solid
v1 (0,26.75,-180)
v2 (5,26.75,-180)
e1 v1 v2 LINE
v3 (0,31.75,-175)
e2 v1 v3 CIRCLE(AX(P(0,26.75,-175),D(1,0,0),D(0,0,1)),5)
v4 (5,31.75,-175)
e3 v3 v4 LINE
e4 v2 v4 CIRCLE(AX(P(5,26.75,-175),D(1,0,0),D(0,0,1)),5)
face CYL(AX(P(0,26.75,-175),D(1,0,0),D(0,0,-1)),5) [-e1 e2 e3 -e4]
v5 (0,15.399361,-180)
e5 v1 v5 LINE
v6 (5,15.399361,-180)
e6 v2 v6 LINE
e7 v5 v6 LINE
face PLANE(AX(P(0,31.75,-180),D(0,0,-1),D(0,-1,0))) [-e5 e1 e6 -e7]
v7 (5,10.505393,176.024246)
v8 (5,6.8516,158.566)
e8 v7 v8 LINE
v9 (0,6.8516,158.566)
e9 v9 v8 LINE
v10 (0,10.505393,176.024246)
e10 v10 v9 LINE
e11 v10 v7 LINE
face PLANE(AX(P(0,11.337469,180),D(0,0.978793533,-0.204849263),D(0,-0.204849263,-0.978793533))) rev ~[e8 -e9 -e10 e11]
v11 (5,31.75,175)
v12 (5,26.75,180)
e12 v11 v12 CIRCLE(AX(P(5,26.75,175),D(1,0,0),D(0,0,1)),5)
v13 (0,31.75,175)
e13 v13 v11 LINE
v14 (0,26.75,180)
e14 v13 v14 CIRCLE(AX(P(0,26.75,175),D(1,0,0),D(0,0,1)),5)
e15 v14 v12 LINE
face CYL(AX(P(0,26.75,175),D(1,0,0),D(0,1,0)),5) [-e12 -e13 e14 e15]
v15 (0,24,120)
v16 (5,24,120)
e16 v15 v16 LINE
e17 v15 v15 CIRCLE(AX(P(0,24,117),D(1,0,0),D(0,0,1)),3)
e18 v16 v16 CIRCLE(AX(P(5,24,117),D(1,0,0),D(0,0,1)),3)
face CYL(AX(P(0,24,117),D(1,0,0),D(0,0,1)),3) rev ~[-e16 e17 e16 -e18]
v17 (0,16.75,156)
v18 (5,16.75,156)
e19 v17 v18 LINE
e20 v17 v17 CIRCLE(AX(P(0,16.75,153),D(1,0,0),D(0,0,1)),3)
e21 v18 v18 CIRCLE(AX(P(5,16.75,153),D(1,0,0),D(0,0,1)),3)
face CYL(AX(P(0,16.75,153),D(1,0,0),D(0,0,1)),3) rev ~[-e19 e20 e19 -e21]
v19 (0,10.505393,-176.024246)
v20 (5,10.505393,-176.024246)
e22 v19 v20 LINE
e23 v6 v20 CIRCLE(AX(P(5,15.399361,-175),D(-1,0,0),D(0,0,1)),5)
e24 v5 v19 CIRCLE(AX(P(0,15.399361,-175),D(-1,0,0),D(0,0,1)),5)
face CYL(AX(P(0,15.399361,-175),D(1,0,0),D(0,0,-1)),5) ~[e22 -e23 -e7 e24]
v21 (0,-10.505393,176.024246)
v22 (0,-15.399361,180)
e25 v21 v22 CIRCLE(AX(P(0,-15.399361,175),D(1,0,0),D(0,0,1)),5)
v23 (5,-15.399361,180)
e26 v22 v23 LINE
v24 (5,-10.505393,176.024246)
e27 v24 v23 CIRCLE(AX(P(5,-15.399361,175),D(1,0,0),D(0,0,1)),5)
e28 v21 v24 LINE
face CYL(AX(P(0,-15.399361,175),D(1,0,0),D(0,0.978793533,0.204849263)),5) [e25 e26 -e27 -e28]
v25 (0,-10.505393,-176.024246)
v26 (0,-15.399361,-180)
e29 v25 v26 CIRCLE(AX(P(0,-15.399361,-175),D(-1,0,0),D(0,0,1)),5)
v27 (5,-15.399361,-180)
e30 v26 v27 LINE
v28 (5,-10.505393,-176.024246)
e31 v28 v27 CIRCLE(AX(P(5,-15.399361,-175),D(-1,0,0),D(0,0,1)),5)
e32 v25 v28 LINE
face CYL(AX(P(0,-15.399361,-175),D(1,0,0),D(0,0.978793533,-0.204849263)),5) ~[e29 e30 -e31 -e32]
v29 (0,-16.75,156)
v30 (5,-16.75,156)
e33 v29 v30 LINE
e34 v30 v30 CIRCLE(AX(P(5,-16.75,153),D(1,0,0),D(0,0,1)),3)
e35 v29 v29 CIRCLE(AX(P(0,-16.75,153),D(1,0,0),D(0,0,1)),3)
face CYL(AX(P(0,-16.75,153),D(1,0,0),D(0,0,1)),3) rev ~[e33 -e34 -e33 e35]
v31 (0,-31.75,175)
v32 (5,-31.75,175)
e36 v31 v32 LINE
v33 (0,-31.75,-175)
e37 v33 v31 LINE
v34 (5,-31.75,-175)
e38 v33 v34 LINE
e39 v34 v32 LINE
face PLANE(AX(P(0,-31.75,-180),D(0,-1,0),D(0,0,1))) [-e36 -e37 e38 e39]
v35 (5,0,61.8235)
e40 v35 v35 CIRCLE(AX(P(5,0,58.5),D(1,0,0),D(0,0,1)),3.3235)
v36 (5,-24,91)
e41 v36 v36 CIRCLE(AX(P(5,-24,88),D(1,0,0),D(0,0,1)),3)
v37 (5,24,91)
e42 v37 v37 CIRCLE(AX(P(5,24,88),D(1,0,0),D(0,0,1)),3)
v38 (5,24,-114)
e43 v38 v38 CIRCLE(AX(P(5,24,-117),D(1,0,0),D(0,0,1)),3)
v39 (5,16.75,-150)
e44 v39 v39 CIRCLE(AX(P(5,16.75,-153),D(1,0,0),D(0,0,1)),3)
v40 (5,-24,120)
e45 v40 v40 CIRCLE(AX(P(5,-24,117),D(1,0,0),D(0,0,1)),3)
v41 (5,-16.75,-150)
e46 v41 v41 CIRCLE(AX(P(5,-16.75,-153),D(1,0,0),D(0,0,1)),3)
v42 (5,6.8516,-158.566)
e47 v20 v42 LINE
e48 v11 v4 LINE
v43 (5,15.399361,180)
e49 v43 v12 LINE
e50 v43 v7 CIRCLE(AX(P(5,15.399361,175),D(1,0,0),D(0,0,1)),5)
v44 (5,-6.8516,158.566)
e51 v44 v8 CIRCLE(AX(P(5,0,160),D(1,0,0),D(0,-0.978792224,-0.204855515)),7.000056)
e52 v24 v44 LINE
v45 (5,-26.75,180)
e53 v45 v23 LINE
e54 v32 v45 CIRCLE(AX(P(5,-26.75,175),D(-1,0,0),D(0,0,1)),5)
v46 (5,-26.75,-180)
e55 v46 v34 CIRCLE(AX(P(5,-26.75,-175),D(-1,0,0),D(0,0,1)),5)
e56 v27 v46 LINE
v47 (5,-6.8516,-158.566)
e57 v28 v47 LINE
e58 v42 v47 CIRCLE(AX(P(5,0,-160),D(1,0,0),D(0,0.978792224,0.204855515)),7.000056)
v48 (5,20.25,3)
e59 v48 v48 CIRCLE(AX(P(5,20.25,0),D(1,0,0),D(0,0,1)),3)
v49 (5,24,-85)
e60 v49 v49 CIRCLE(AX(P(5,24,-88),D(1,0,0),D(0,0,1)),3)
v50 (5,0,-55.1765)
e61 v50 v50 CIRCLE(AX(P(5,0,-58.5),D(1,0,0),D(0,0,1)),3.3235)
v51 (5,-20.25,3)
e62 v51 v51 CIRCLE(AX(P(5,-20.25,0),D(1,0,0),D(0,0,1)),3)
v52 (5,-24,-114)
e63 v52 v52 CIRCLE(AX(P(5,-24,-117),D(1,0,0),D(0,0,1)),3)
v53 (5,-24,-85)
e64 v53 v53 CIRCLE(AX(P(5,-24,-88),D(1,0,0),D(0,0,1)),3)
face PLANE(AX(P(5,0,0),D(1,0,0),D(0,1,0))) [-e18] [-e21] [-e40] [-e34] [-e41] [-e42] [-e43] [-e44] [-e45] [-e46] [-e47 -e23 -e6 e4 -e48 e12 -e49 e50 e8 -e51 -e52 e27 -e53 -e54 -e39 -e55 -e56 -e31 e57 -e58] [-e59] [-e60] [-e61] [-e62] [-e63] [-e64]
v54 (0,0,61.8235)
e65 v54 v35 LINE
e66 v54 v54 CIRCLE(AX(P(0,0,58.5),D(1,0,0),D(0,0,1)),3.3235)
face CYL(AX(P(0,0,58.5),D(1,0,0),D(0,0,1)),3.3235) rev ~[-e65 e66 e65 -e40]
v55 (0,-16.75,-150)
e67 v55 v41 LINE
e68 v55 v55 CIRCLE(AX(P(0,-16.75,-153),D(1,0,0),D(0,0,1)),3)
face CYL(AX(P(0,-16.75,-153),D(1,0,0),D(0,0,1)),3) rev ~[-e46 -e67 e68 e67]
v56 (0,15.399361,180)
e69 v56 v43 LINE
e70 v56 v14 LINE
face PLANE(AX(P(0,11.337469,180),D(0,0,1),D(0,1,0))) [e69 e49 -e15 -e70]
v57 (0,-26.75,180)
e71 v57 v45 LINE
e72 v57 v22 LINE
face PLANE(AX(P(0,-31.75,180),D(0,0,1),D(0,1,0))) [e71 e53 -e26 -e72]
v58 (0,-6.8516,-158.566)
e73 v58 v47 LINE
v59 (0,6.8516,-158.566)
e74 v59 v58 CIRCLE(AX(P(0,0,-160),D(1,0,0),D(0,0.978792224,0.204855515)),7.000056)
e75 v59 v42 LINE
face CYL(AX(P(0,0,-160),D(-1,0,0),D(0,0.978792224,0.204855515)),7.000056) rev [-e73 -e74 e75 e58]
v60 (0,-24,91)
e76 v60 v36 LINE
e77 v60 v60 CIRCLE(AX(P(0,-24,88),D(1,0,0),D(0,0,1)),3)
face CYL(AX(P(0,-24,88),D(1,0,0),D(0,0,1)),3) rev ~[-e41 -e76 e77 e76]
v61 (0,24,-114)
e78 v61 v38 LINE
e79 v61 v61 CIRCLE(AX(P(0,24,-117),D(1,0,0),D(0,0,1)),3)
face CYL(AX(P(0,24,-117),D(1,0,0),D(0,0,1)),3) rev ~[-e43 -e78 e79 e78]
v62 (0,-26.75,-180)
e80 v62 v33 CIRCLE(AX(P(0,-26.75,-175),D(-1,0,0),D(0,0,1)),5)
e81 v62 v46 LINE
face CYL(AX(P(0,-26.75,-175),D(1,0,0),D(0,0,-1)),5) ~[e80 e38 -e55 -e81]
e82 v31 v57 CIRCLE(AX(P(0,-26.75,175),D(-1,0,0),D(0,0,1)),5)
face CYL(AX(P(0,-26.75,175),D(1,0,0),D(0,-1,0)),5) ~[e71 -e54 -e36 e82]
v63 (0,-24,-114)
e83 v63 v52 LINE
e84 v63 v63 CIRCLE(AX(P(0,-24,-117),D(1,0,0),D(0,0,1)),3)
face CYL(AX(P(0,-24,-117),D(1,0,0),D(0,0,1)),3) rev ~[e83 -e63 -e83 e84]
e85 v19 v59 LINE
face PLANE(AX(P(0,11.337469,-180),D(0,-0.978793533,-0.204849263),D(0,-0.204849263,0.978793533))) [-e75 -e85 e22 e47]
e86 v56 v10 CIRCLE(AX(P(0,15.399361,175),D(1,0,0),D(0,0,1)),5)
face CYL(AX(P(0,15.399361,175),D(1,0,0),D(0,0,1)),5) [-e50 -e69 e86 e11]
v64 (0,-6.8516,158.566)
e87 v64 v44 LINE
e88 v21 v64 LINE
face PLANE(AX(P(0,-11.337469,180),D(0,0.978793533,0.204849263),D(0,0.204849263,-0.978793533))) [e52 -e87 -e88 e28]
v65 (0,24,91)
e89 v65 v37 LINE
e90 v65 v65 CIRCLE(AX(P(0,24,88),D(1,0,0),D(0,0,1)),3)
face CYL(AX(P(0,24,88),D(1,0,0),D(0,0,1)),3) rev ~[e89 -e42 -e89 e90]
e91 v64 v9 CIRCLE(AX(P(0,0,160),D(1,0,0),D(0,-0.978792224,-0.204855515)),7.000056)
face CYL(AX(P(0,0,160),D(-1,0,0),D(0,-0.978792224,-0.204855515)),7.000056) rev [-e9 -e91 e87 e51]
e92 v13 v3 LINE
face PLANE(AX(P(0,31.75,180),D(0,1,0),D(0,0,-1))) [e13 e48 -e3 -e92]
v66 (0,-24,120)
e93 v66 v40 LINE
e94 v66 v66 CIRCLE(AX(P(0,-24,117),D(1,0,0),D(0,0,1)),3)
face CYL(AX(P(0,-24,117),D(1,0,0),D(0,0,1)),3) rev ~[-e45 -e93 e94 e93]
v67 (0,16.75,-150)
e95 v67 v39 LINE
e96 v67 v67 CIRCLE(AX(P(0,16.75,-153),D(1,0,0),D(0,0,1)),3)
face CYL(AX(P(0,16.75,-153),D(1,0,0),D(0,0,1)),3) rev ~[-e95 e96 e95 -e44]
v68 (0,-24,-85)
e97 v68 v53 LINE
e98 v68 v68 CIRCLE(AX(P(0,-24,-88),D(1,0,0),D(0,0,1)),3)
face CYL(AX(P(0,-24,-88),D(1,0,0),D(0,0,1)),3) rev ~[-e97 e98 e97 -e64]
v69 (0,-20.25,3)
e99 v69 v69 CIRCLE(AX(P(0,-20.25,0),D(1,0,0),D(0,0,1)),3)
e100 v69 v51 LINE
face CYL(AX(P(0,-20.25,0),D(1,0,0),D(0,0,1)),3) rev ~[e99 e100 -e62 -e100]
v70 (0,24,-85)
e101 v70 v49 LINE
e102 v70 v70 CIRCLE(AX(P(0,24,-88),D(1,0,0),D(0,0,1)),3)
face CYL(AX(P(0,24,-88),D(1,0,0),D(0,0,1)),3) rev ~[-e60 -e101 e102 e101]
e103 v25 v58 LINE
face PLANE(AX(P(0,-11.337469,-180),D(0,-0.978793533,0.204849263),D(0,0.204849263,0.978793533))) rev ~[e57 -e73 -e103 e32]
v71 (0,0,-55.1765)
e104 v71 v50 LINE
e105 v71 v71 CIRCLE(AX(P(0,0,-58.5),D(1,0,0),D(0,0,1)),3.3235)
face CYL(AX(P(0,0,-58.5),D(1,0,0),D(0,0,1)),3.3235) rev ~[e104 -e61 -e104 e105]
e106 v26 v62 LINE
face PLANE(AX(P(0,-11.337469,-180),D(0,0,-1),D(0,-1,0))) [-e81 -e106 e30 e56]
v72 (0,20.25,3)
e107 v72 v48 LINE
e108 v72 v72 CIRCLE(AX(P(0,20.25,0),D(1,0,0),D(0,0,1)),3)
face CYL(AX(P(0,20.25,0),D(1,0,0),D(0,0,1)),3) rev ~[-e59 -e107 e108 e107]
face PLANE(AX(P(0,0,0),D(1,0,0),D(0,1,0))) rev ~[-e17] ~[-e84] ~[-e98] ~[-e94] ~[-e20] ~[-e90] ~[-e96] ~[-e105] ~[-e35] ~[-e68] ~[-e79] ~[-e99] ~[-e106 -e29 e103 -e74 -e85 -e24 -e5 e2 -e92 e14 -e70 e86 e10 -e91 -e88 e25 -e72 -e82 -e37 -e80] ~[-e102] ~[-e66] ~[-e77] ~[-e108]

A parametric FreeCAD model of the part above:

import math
import FreeCAD as App
import Part
import Sketcher
from FreeCAD import Vector
Q = App.Units.Quantity


def edges_at(feature, points):
    """Names of the edges that pass closest to the given points."""
    edges = feature.Shape.Edges
    near = lambda p: min(range(len(edges)), key=lambda i: edges[i].distToShape(Part.Vertex(*p))[0])
    return sorted({f"Edge{near(p) + 1}" for p in points})

doc = App.newDocument("Part")
body = doc.addObject("PartDesign::Body", "Body")

# Sketch on YZ plane
sketch1 = doc.addObject("Sketcher::SketchObject", "Sketch")
body.addObject(sketch1)
sketch1.AttachmentSupport = (doc.YZ_Plane, [""])
sketch1.MapMode = "FlatFace"
sketch1.addGeometry([
    Part.LineSegment(Vector(11.337469, -180, 0), Vector(31.75, -180, 0)),  # 0
    Part.LineSegment(Vector(31.75, -180, 0), Vector(31.75, 180, 0)),  # 1
    Part.LineSegment(Vector(31.75, 180, 0), Vector(11.337469, 180, 0)),  # 2
    Part.LineSegment(Vector(11.337469, 180, 0), Vector(6.8516, 158.566, 0)),  # 3
    Part.ArcOfCircle(Part.Circle(Vector(0, 160, 0), Vector(0, 0, 1), 7.000056), math.radians(-168.178959), math.radians(-11.821041)),  # 4
    Part.LineSegment(Vector(-6.8516, 158.566, 0), Vector(-11.337469, 180, 0)),  # 5
    Part.LineSegment(Vector(-11.337469, 180, 0), Vector(-31.75, 180, 0)),  # 6
    Part.LineSegment(Vector(-31.75, 180, 0), Vector(-31.75, -180, 0)),  # 7
    Part.LineSegment(Vector(-31.75, -180, 0), Vector(-11.337469, -180, 0)),  # 8
    Part.LineSegment(Vector(-11.337469, -180, 0), Vector(-6.8516, -158.566, 0)),  # 9
    Part.ArcOfCircle(Part.Circle(Vector(0, -160, 0), Vector(0, 0, 1), 7.000056), math.radians(11.821041), math.radians(168.178959)),  # 10
    Part.LineSegment(Vector(6.8516, -158.566, 0), Vector(11.337469, -180, 0)),  # 11
], False)
sketch1.addConstraint([
    Sketcher.Constraint("Coincident", 0, 2, 1, 1),
    Sketcher.Constraint("Coincident", 1, 2, 2, 1),
    Sketcher.Constraint("Coincident", 2, 2, 3, 1),
    Sketcher.Constraint("Tangent", 3, 2, 4, 2),
    Sketcher.Constraint("Tangent", 4, 1, 5, 1),
    Sketcher.Constraint("Coincident", 5, 2, 6, 1),
    Sketcher.Constraint("Coincident", 6, 2, 7, 1),
    Sketcher.Constraint("Coincident", 7, 2, 8, 1),
    Sketcher.Constraint("Coincident", 8, 2, 9, 1),
    Sketcher.Constraint("Tangent", 9, 2, 10, 2),
    Sketcher.Constraint("Tangent", 10, 1, 11, 1),
    Sketcher.Constraint("Coincident", 11, 2, 0, 1),
    Sketcher.Constraint("Horizontal", 0),
    Sketcher.Constraint("Vertical", 1),
    Sketcher.Constraint("Horizontal", 2),
    Sketcher.Constraint("Horizontal", 6),
    Sketcher.Constraint("Vertical", 7),
    Sketcher.Constraint("Horizontal", 8),
    Sketcher.Constraint("Equal", 4, 10),
    Sketcher.Constraint("Symmetric", 4, 3, 10, 3, -1, 1),
    Sketcher.Constraint("Symmetric", 0, 2, 6, 2, -1, 1),
    Sketcher.Constraint("Symmetric", 2, 2, 8, 2, -1, 1),
    Sketcher.Constraint("Symmetric", 3, 2, 4, 1, -2),
    Sketcher.Constraint("Symmetric", 8, 2, 11, 2, -2),
    Sketcher.Constraint("Radius", 4, 7.0),
    Sketcher.Constraint("DistanceY", 1, 1, 1, 2, 360.0),
    Sketcher.Constraint("DistanceY", 10, 3, 4, 3, 320.0),
    Sketcher.Constraint("DistanceX", 7, 2, 0, 2, 63.5),
    Sketcher.Constraint("Angle", 3, Q("-101.8207 deg")),
])
pad1 = doc.addObject("PartDesign::Pad", "Pad")
body.addObject(pad1)
pad1.Profile = sketch1
pad1.Length = 5

# Sketch on YZ plane
sketch2 = doc.addObject("Sketcher::SketchObject", "Sketch001")
body.addObject(sketch2)
sketch2.AttachmentSupport = (doc.YZ_Plane, [""])
sketch2.MapMode = "FlatFace"
sketch2.addGeometry([
    Part.Circle(Vector(-20.25, 0, 0), Vector(0, 0, 1), 3),  # 0
    Part.Circle(Vector(20.25, 0, 0), Vector(0, 0, 1), 3),  # 1
    Part.Circle(Vector(24, -88, 0), Vector(0, 0, 1), 3),  # 2
    Part.Circle(Vector(24, -117, 0), Vector(0, 0, 1), 3),  # 3
    Part.Circle(Vector(16.75, -153, 0), Vector(0, 0, 1), 3),  # 4
    Part.Circle(Vector(-24, -88, 0), Vector(0, 0, 1), 3),  # 5
    Part.Circle(Vector(-24, -117, 0), Vector(0, 0, 1), 3),  # 6
    Part.Circle(Vector(-16.75, -153, 0), Vector(0, 0, 1), 3),  # 7
    Part.Circle(Vector(24, 88, 0), Vector(0, 0, 1), 3),  # 8
    Part.Circle(Vector(24, 117, 0), Vector(0, 0, 1), 3),  # 9
    Part.Circle(Vector(16.75, 153, 0), Vector(0, 0, 1), 3),  # 10
    Part.Circle(Vector(-16.75, 153, 0), Vector(0, 0, 1), 3),  # 11
    Part.Circle(Vector(-24, 117, 0), Vector(0, 0, 1), 3),  # 12
    Part.Circle(Vector(-24, 88, 0), Vector(0, 0, 1), 3),  # 13
    Part.Circle(Vector(0, 160, 0), Vector(0, 0, 1), 3),  # 14
    Part.Circle(Vector(0, -160, 0), Vector(0, 0, 1), 3),  # 15
], False)
sketch2.addConstraint([
    Sketcher.Constraint("Equal", 0, 1),
    Sketcher.Constraint("Equal", 1, 2),
    Sketcher.Constraint("Equal", 2, 3),
    Sketcher.Constraint("Equal", 3, 4),
    Sketcher.Constraint("Equal", 4, 5),
    Sketcher.Constraint("Equal", 5, 6),
    Sketcher.Constraint("Equal", 6, 7),
    Sketcher.Constraint("Equal", 7, 8),
    Sketcher.Constraint("Equal", 8, 9),
    Sketcher.Constraint("Equal", 9, 10),
    Sketcher.Constraint("Equal", 10, 11),
    Sketcher.Constraint("Equal", 11, 12),
    Sketcher.Constraint("Equal", 12, 13),
    Sketcher.Constraint("Equal", 13, 14),
    Sketcher.Constraint("Equal", 14, 15),
    Sketcher.Constraint("Symmetric", 0, 3, 1, 3, -1, 1),
    Sketcher.Constraint("Symmetric", 5, 3, 8, 3, -1, 1),
    Sketcher.Constraint("Symmetric", 6, 3, 9, 3, -1, 1),
    Sketcher.Constraint("Symmetric", 7, 3, 10, 3, -1, 1),
    Sketcher.Constraint("Symmetric", 4, 3, 11, 3, -1, 1),
    Sketcher.Constraint("Symmetric", 3, 3, 12, 3, -1, 1),
    Sketcher.Constraint("Symmetric", 2, 3, 13, 3, -1, 1),
    Sketcher.Constraint("Symmetric", 14, 3, 15, 3, -1, 1),
    Sketcher.Constraint("Symmetric", 2, 3, 5, 3, -2),
    Sketcher.Constraint("Symmetric", 3, 3, 6, 3, -2),
    Sketcher.Constraint("Symmetric", 4, 3, 7, 3, -2),
    Sketcher.Constraint("PointOnObject", 0, 3, -1),
    Sketcher.Constraint("PointOnObject", 14, 3, -2),
    Sketcher.Constraint("Vertical", 2, 3, 3, 3),
    Sketcher.Constraint("Diameter", 0, 6.0),
    Sketcher.Constraint("DistanceX", -1, 1, 2, 3, 24.0),
    Sketcher.Constraint("DistanceY", 2, 3, -1, 1, 88.0),
    Sketcher.Constraint("DistanceY", 3, 3, -1, 1, 117.0),
    Sketcher.Constraint("DistanceY", 4, 3, -1, 1, 153.0),
    Sketcher.Constraint("DistanceY", -1, 1, 14, 3, 160.0),
    Sketcher.Constraint("DistanceX", 0, 3, 4, 3, 37.0),
    Sketcher.Constraint("DistanceX", 0, 3, 1, 3, 40.5),
])
doc.recompute()
hole = doc.addObject("PartDesign::Hole", "Hole")
body.addObject(hole)
hole.Profile = sketch2
hole.ThreadType = "None"
hole.Diameter = 6
hole.DepthType = "ThroughAll"
hole.Reversed = True

# Sketch on YZ plane
sketch3 = doc.addObject("Sketcher::SketchObject", "Sketch002")
body.addObject(sketch3)
sketch3.AttachmentSupport = (doc.YZ_Plane, [""])
sketch3.MapMode = "FlatFace"
sketch3.addGeometry([
    Part.Circle(Vector(0, 58.5, 0), Vector(0, 0, 1), 3.3235),
    Part.Circle(Vector(0, -58.5, 0), Vector(0, 0, 1), 3.3235),
], False)
sketch3.addConstraint([
    Sketcher.Constraint("Equal", 0, 1),
    Sketcher.Constraint("Symmetric", 0, 3, 1, 3, -1, 1),
    Sketcher.Constraint("PointOnObject", 0, 3, -2),
    Sketcher.Constraint("Diameter", 0, 6.647),
    Sketcher.Constraint("DistanceY", 1, 3, 0, 3, 117.0),
])
doc.recompute()
hole2 = doc.addObject("PartDesign::Hole", "Hole001")
body.addObject(hole2)
hole2.Profile = sketch3
hole2.ThreadType = "None"
hole2.Diameter = 6.647
hole2.DepthType = "ThroughAll"
hole2.Reversed = True
doc.recompute()

fillet = doc.addObject("PartDesign::Fillet", "Fillet")
body.addObject(fillet)
fillet.Base = (hole2, edges_at(hole2, [
    (2.5, 31.75, 180),
    (2.5, -31.75, 180),
    (2.5, 31.75, -180),
    (2.5, 11.337, -180),
    (2.5, -11.337, -180),
    (2.5, -31.75, -180),
    (2.5, -11.337, 180),
    (2.5, 11.337, 180),
]))
fillet.Radius = 5

doc.recompute()
